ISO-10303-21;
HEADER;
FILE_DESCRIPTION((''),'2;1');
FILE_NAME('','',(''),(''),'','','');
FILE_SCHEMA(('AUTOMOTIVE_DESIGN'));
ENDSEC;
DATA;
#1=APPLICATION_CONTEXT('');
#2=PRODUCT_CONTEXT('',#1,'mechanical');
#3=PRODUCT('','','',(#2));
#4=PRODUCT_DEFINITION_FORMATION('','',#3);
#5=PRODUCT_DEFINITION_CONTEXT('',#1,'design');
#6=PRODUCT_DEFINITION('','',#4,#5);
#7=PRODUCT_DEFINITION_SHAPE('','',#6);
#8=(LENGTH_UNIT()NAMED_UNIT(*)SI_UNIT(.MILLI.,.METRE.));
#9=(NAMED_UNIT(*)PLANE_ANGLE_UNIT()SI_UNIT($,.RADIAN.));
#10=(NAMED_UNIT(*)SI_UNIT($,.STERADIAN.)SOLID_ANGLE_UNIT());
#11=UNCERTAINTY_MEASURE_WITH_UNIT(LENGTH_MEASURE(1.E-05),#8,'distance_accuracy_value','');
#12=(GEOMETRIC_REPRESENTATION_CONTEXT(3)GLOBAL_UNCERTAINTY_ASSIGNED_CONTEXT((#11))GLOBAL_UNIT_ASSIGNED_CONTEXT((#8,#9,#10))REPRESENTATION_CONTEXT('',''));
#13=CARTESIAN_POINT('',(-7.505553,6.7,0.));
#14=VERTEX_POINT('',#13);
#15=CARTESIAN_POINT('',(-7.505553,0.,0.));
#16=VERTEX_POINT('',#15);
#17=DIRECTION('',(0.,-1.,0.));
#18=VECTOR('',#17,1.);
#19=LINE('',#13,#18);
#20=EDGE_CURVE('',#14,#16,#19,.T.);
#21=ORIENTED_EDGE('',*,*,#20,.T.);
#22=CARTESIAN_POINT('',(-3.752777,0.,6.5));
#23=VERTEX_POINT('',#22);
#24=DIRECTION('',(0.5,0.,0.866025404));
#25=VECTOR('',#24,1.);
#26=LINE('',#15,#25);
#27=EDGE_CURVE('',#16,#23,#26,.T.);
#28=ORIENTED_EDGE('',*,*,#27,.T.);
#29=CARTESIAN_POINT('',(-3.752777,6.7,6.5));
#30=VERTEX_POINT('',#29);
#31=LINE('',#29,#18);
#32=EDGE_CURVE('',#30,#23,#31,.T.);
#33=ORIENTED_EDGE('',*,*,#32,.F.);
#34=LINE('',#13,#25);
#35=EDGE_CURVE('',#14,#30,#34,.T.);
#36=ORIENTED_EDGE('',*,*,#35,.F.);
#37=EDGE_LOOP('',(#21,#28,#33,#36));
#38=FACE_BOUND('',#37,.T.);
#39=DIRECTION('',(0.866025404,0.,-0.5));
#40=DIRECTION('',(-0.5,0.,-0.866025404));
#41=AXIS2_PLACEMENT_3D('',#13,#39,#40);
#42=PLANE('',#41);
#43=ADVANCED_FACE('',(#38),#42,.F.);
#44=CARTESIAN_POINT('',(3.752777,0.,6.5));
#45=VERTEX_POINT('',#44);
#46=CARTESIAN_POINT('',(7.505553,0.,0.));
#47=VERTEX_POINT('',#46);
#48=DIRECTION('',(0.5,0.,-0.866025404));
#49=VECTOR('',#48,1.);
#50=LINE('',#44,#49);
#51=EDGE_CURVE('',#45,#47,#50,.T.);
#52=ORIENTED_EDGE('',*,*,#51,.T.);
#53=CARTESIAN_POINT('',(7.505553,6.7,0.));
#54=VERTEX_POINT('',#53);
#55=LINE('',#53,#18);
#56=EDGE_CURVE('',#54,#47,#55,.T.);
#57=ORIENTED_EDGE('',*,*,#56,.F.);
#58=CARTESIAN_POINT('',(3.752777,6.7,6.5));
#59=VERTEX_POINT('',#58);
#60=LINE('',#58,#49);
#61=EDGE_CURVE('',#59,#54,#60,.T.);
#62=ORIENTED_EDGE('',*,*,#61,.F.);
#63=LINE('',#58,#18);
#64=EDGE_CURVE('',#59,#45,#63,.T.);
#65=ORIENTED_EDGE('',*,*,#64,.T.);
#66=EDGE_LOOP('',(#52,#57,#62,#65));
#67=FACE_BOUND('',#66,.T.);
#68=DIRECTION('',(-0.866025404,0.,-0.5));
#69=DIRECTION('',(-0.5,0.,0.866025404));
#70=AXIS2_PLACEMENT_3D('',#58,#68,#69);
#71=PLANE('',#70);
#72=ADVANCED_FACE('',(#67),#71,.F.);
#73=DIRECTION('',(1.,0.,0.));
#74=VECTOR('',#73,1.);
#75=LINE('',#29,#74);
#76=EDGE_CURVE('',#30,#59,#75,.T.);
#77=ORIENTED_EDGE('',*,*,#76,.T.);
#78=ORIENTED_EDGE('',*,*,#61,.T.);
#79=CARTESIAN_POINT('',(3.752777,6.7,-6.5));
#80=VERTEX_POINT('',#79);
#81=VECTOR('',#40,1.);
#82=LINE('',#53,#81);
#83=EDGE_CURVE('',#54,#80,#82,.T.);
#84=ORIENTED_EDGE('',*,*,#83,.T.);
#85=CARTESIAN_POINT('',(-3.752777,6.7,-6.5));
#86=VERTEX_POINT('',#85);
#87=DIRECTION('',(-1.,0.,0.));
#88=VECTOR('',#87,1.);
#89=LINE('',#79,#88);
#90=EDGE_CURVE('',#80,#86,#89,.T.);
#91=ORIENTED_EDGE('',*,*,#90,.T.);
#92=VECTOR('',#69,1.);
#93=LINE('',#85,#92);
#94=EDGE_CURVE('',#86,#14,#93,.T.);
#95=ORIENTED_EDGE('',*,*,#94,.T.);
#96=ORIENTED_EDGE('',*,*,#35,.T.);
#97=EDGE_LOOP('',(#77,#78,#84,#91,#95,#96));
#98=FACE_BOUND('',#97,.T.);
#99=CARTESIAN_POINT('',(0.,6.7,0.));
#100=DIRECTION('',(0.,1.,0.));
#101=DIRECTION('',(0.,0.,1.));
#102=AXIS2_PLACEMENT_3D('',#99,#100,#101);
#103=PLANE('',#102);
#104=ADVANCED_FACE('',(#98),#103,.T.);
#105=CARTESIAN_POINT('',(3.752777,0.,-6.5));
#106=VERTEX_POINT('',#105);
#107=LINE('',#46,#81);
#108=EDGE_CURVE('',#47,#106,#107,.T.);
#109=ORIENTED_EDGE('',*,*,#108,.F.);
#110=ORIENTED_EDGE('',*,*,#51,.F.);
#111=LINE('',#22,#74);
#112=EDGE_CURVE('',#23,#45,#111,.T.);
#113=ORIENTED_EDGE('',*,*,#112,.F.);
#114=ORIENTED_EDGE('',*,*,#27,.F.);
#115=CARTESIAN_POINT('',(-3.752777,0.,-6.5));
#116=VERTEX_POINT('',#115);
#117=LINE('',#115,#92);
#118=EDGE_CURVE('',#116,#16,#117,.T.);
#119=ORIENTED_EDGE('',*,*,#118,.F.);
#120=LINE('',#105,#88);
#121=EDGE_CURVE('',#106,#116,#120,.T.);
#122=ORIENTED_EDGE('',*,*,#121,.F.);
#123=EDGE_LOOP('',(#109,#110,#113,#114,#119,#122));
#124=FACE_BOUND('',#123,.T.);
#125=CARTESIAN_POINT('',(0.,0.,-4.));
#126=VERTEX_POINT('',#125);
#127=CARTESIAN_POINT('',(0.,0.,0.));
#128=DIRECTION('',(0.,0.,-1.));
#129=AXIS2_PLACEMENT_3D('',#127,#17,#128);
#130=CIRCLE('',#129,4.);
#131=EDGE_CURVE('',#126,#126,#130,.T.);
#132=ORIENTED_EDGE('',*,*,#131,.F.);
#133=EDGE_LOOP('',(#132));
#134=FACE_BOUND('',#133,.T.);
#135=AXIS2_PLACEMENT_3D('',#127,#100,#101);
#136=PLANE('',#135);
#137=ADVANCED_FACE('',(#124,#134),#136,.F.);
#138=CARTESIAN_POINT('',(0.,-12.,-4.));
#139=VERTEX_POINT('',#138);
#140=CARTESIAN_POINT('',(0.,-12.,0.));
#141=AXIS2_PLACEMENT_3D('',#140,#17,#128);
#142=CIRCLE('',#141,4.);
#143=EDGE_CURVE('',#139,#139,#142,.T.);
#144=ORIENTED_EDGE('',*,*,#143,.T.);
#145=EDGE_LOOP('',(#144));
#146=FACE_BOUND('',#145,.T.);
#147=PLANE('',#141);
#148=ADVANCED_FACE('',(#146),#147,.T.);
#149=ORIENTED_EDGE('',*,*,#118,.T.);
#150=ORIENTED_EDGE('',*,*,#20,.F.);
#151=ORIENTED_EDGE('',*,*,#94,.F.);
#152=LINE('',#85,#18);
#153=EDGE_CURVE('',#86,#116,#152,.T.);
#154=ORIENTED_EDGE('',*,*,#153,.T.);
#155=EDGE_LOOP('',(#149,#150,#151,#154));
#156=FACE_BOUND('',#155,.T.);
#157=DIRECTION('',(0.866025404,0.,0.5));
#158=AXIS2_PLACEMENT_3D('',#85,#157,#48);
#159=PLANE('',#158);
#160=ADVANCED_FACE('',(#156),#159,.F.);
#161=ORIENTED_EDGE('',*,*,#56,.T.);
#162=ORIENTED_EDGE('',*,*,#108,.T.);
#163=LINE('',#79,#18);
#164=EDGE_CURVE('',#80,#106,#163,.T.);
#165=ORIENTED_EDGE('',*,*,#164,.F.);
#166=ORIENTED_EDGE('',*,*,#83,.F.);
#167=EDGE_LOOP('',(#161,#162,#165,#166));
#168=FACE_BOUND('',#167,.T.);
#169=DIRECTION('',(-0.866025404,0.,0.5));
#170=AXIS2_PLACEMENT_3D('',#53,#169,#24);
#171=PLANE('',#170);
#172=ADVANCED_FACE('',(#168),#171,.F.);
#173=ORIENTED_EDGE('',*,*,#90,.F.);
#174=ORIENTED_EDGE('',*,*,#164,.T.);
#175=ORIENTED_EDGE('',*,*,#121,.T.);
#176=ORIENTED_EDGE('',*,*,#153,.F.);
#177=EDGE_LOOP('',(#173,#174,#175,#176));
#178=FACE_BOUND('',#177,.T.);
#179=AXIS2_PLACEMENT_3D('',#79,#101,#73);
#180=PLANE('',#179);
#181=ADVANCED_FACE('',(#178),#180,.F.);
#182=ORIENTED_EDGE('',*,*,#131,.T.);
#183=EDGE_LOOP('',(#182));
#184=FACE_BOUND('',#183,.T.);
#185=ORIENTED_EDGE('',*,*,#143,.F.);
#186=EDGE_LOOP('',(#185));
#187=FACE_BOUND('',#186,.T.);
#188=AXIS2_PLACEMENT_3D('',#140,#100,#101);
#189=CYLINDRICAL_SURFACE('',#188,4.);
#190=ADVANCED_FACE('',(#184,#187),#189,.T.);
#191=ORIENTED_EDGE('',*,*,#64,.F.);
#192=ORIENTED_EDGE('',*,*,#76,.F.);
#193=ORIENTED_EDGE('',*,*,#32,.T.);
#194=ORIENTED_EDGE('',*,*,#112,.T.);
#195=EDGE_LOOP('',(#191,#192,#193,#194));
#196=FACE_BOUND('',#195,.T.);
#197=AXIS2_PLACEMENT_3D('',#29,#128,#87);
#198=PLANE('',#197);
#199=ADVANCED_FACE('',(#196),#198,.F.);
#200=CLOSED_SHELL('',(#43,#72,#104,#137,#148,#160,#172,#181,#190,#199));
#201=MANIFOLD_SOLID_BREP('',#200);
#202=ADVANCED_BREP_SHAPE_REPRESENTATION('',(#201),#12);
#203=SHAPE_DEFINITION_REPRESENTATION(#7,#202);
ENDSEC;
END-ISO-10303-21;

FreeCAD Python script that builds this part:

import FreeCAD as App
import Part
import Sketcher
from FreeCAD import Vector
Q = App.Units.Quantity


def add_polygon(sketch, points):
    """Adds a closed chain of lines whose ends are joined by coincident constraints."""
    first, n = sketch.GeometryCount, len(points)
    for a, b in zip(points, points[1:] + points[:1]):
        sketch.addGeometry(Part.LineSegment(App.Vector(*a, 0), App.Vector(*b, 0)), False)
    for i in range(n):
        sketch.addConstraint(Sketcher.Constraint("Coincident", first + i, 2, first + (i + 1) % n, 1))

doc = App.newDocument("Part")
body = doc.addObject("PartDesign::Body", "Body")

# Sketch on XZ plane
sketch1 = doc.addObject("Sketcher::SketchObject", "Sketch")
body.addObject(sketch1)
sketch1.AttachmentSupport = (doc.XZ_Plane, [""])
sketch1.MapMode = "FlatFace"
add_polygon(sketch1, [(8, 0), (4, -6), (-4, -6), (-8, 0), (-4, 6), (4, 6)])  # lines 0-5
sketch1.addConstraint(Sketcher.Constraint("Horizontal", 1))
sketch1.addConstraint(Sketcher.Constraint("Horizontal", 4))
sketch1.addConstraint(Sketcher.Constraint("Symmetric", 0, 2, 3, 2, -1, 1))
sketch1.addConstraint(Sketcher.Constraint("Symmetric", 2, 2, 5, 2, -1, 1))
sketch1.addConstraint(Sketcher.Constraint("PointOnObject", 2, 2, -1))
sketch1.addConstraint(Sketcher.Constraint("Parallel", 2, 5))
sketch1.addConstraint(Sketcher.Constraint("Vertical", 1, 2, 3, 2))
sketch1.addConstraint(Sketcher.Constraint("Angle", 0, Q("-120 deg")))
sketch1.addConstraint(Sketcher.Constraint("DistanceY", 1, 2, 3, 2, Q("13 mm")))
sketch1.addConstraint(Sketcher.Constraint("DistanceX", 1, 2, 1, 1, Q("7.505554 mm")))
pad1 = doc.addObject("PartDesign::Pad", "Pad")
body.addObject(pad1)
pad1.Profile = sketch1
pad1.Length = 6.7
pad1.Reversed = True

# Sketch on XZ plane
sketch2 = doc.addObject("Sketcher::SketchObject", "Sketch001")
body.addObject(sketch2)
sketch2.AttachmentSupport = (doc.XZ_Plane, [""])
sketch2.MapMode = "FlatFace"
sketch2.addGeometry(Part.Circle(Vector(0, 0, 0), Vector(0, 0, 1), 4), False)
sketch2.addConstraint(Sketcher.Constraint("Coincident", 0, 3, -1, 1))
sketch2.addConstraint(Sketcher.Constraint("Diameter", 0, Q("8 mm")))
pad2 = doc.addObject("PartDesign::Pad", "Pad001")
body.addObject(pad2)
pad2.Profile = sketch2
pad2.Length = 12

doc.recompute()
